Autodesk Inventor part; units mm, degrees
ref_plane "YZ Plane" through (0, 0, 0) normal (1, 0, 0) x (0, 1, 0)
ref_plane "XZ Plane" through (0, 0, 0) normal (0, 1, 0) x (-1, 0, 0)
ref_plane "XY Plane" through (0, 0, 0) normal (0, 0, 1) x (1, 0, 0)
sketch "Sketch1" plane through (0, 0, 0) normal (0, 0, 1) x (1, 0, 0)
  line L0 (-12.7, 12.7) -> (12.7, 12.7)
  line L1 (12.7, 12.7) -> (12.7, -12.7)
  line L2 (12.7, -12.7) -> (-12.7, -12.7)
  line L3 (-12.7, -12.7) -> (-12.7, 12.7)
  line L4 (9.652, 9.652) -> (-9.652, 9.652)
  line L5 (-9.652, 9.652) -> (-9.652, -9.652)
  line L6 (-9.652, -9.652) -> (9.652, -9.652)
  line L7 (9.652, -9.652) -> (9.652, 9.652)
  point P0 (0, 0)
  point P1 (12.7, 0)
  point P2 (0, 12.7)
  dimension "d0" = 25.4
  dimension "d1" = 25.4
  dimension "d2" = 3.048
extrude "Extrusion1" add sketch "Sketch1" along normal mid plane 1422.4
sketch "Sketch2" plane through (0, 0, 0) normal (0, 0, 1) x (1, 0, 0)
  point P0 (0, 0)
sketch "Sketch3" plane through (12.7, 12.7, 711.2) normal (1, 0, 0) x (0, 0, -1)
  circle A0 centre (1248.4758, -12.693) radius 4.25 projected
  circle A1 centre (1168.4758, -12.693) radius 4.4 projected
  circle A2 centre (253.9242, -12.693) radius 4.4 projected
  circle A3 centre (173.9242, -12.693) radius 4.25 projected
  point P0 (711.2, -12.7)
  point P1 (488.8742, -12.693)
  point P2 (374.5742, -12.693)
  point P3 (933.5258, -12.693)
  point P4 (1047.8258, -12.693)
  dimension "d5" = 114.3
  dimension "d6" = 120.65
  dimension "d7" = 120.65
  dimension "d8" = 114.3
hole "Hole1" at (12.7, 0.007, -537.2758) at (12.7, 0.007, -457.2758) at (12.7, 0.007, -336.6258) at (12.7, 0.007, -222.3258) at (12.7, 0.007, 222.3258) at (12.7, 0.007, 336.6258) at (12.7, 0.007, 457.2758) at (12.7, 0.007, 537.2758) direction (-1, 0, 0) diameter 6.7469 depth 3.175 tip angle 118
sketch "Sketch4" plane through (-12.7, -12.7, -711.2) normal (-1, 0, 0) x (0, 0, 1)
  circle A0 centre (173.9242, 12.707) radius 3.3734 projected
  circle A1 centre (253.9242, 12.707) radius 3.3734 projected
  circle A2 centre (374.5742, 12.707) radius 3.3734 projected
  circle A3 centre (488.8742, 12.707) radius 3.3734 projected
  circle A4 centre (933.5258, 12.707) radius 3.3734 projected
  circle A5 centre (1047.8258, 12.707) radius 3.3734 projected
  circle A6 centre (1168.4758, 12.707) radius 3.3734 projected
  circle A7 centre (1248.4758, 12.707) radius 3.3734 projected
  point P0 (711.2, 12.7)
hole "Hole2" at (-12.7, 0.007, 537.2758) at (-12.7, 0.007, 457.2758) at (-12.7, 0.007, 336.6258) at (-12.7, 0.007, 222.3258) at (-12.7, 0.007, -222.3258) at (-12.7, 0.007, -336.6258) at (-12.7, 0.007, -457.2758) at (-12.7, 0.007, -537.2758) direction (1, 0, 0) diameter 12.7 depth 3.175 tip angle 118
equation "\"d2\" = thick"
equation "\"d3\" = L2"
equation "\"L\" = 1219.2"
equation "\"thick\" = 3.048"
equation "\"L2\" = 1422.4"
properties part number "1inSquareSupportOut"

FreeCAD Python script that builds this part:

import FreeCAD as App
import Part
import Sketcher

V = App.Vector
Q = App.Units.Quantity


def add_polygon(sketch, points):
    """Adds a closed chain of lines whose ends are joined by coincident constraints."""
    first, n = sketch.GeometryCount, len(points)
    for a, b in zip(points, points[1:] + points[:1]):
        sketch.addGeometry(Part.LineSegment(App.Vector(*a, 0), App.Vector(*b, 0)), False)
    for i in range(n):
        sketch.addConstraint(Sketcher.Constraint("Coincident", first + i, 2, first + (i + 1) % n, 1))

doc = App.newDocument("Part")
body = doc.addObject("PartDesign::Body", "Body")

# Sketch on XY plane
sketch1 = body.newObject("Sketcher::SketchObject", "Sketch")
sketch1.AttachmentSupport = (doc.getObject("XY_Plane"), [""])
sketch1.MapMode = "FlatFace"
add_polygon(sketch1, [(13, 13), (-13, 13), (-13, -13), (13, -13)])  # lines 0-3
add_polygon(sketch1, [(-10, 10), (10, 10), (10, -10), (-10, -10)])  # lines 4-7
sketch1.addConstraint(Sketcher.Constraint("Horizontal", 0))
sketch1.addConstraint(Sketcher.Constraint("Vertical", 1))
sketch1.addConstraint(Sketcher.Constraint("Horizontal", 2))
sketch1.addConstraint(Sketcher.Constraint("Vertical", 3))
sketch1.addConstraint(Sketcher.Constraint("Horizontal", 4))
sketch1.addConstraint(Sketcher.Constraint("Vertical", 5))
sketch1.addConstraint(Sketcher.Constraint("Horizontal", 6))
sketch1.addConstraint(Sketcher.Constraint("Vertical", 7))
sketch1.addConstraint(Sketcher.Constraint("Symmetric", 0, 2, 2, 2, -1, 1))
sketch1.addConstraint(Sketcher.Constraint("Symmetric", 4, 2, 6, 2, -1, 1))
sketch1.addConstraint(Sketcher.Constraint("Equal", 2, 1))
sketch1.addConstraint(Sketcher.Constraint("Equal", 6, 5))
sketch1.addConstraint(Sketcher.Constraint("DistanceX", 0, 2, 0, 1, Q("1 in")))
sketch1.addConstraint(Sketcher.Constraint("DistanceX", 4, 2, 3, 2, Q("0.12 in")))
pad1 = body.newObject("PartDesign::Pad", "Pad")
pad1.Profile = sketch1
pad1.Length = Q("56 in")
pad1.Midplane = True

# Sketch on YZ plane
sketch2 = body.newObject("Sketcher::SketchObject", "Sketch001")
sketch2.AttachmentSupport = (doc.getObject("YZ_Plane"), [""])
sketch2.MapMode = "FlatFace"
sketch2.AttachmentOffset = App.Placement(V(0, 0, 0.5 * 25.4), App.Rotation())
sketch2.addGeometry(Part.Circle(V(0, -537.3, 0), V(0, 0, 1), 3.4), False)
sketch2.addGeometry(Part.Circle(V(0, -457.3, 0), V(0, 0, 1), 3.4), False)
sketch2.addGeometry(Part.Circle(V(0, -336.6, 0), V(0, 0, 1), 3.4), False)
sketch2.addGeometry(Part.Circle(V(0, -222.3, 0), V(0, 0, 1), 3.4), False)
sketch2.addGeometry(Part.Circle(V(0, 222.3, 0), V(0, 0, 1), 3.4), False)
sketch2.addGeometry(Part.Circle(V(0, 336.6, 0), V(0, 0, 1), 3.4), False)
sketch2.addGeometry(Part.Circle(V(0, 457.3, 0), V(0, 0, 1), 3.4), False)
sketch2.addGeometry(Part.Circle(V(0, 537.3, 0), V(0, 0, 1), 3.4), False)
sketch2.addConstraint(Sketcher.Constraint("Equal", 0, 1))
sketch2.addConstraint(Sketcher.Constraint("Equal", 1, 2))
sketch2.addConstraint(Sketcher.Constraint("Equal", 2, 3))
sketch2.addConstraint(Sketcher.Constraint("Equal", 3, 4))
sketch2.addConstraint(Sketcher.Constraint("Equal", 4, 5))
sketch2.addConstraint(Sketcher.Constraint("Equal", 5, 6))
sketch2.addConstraint(Sketcher.Constraint("Equal", 6, 7))
sketch2.addConstraint(Sketcher.Constraint("Symmetric", 3, 3, 4, 3, -1))
sketch2.addConstraint(Sketcher.Constraint("Symmetric", 2, 3, 5, 3, -1))
sketch2.addConstraint(Sketcher.Constraint("Symmetric", 1, 3, 6, 3, -1))
sketch2.addConstraint(Sketcher.Constraint("Symmetric", 0, 3, 7, 3, -1))
sketch2.addConstraint(Sketcher.Constraint("Vertical", 0, 3, 1, 3))
sketch2.addConstraint(Sketcher.Constraint("Vertical", 1, 3, 2, 3))
sketch2.addConstraint(Sketcher.Constraint("Vertical", 2, 3, 3, 3))
sketch2.addConstraint(Sketcher.Constraint("Diameter", 0, Q("0.2656299 in")))
sketch2.addConstraint(Sketcher.Constraint("DistanceY", 2, 3, 3, 3, Q("4.5 in")))
sketch2.addConstraint(Sketcher.Constraint("DistanceY", 1, 3, 2, 3, Q("4.75 in")))
sketch2.addConstraint(Sketcher.Constraint("DistanceY", 0, 3, -1, 1, Q("21.1526 in")))
sketch2.addConstraint(Sketcher.Constraint("DistanceY", 0, 3, 1, 3, Q("3.1496 in")))
sketch2.addConstraint(Sketcher.Constraint("DistanceX", -1, 1, 0, 3, 0.007))
doc.recompute()
hole = body.newObject("PartDesign::Hole", "Hole")
hole.Profile = sketch2
hole.ThreadType = "None"
hole.Diameter = Q("0.265626 in")
hole.DepthType = "Dimension"
hole.Depth = Q("0.125 in")
hole.DrillPoint = "Angled"
hole.DrillPointAngle = 118

# Sketch on YZ plane
sketch3 = body.newObject("Sketcher::SketchObject", "Sketch002")
sketch3.AttachmentSupport = (doc.getObject("YZ_Plane"), [""])
sketch3.MapMode = "FlatFace"
sketch3.AttachmentOffset = App.Placement(V(0, 0, -0.5 * 25.4), App.Rotation())
sketch3.addGeometry(Part.Circle(V(0, 537, 0), V(0, 0, 1), 6), False)
sketch3.addGeometry(Part.Circle(V(0, 457, 0), V(0, 0, 1), 6), False)
sketch3.addGeometry(Part.Circle(V(0, 337, 0), V(0, 0, 1), 6), False)
sketch3.addGeometry(Part.Circle(V(0, 222, 0), V(0, 0, 1), 6), False)
sketch3.addGeometry(Part.Circle(V(0, -222, 0), V(0, 0, 1), 6), False)
sketch3.addGeometry(Part.Circle(V(0, -337, 0), V(0, 0, 1), 6), False)
sketch3.addGeometry(Part.Circle(V(0, -457, 0), V(0, 0, 1), 6), False)
sketch3.addGeometry(Part.Circle(V(0, -537, 0), V(0, 0, 1), 6), False)
sketch3.addConstraint(Sketcher.Constraint("Equal", 0, 1))
sketch3.addConstraint(Sketcher.Constraint("Equal", 1, 2))
sketch3.addConstraint(Sketcher.Constraint("Equal", 2, 3))
sketch3.addConstraint(Sketcher.Constraint("Equal", 3, 4))
sketch3.addConstraint(Sketcher.Constraint("Equal", 4, 5))
sketch3.addConstraint(Sketcher.Constraint("Equal", 5, 6))
sketch3.addConstraint(Sketcher.Constraint("Equal", 6, 7))
sketch3.addConstraint(Sketcher.Constraint("Symmetric", 3, 3, 4, 3, -1))
sketch3.addConstraint(Sketcher.Constraint("Symmetric", 2, 3, 5, 3, -1))
sketch3.addConstraint(Sketcher.Constraint("Symmetric", 1, 3, 6, 3, -1))
sketch3.addConstraint(Sketcher.Constraint("Symmetric", 0, 3, 7, 3, -1))
sketch3.addConstraint(Sketcher.Constraint("Vertical", 0, 3, 1, 3))
sketch3.addConstraint(Sketcher.Constraint("Vertical", 1, 3, 2, 3))
sketch3.addConstraint(Sketcher.Constraint("Vertical", 2, 3, 3, 3))
sketch3.addConstraint(Sketcher.Constraint("Diameter", 0, Q("0.5 in")))
sketch3.addConstraint(Sketcher.Constraint("DistanceY", 3, 3, 2, 3, Q("4.5 in")))
sketch3.addConstraint(Sketcher.Constraint("DistanceY", 2, 3, 1, 3, Q("4.75 in")))
sketch3.addConstraint(Sketcher.Constraint("DistanceY", -1, 1, 0, 3, Q("21.1526 in")))
sketch3.addConstraint(Sketcher.Constraint("DistanceY", 1, 3, 0, 3, Q("3.1496 in")))
sketch3.addConstraint(Sketcher.Constraint("DistanceX", -1, 1, 0, 3, 0.007))
doc.recompute()
hole2 = body.newObject("PartDesign::Hole", "Hole001")
hole2.Profile = sketch3
hole2.ThreadType = "None"
hole2.Diameter = Q("0.5 in")
hole2.DepthType = "Dimension"
hole2.Depth = Q("0.125 in")
hole2.DrillPoint = "Angled"
hole2.DrillPointAngle = 118
hole2.Reversed = True

doc.recompute()
